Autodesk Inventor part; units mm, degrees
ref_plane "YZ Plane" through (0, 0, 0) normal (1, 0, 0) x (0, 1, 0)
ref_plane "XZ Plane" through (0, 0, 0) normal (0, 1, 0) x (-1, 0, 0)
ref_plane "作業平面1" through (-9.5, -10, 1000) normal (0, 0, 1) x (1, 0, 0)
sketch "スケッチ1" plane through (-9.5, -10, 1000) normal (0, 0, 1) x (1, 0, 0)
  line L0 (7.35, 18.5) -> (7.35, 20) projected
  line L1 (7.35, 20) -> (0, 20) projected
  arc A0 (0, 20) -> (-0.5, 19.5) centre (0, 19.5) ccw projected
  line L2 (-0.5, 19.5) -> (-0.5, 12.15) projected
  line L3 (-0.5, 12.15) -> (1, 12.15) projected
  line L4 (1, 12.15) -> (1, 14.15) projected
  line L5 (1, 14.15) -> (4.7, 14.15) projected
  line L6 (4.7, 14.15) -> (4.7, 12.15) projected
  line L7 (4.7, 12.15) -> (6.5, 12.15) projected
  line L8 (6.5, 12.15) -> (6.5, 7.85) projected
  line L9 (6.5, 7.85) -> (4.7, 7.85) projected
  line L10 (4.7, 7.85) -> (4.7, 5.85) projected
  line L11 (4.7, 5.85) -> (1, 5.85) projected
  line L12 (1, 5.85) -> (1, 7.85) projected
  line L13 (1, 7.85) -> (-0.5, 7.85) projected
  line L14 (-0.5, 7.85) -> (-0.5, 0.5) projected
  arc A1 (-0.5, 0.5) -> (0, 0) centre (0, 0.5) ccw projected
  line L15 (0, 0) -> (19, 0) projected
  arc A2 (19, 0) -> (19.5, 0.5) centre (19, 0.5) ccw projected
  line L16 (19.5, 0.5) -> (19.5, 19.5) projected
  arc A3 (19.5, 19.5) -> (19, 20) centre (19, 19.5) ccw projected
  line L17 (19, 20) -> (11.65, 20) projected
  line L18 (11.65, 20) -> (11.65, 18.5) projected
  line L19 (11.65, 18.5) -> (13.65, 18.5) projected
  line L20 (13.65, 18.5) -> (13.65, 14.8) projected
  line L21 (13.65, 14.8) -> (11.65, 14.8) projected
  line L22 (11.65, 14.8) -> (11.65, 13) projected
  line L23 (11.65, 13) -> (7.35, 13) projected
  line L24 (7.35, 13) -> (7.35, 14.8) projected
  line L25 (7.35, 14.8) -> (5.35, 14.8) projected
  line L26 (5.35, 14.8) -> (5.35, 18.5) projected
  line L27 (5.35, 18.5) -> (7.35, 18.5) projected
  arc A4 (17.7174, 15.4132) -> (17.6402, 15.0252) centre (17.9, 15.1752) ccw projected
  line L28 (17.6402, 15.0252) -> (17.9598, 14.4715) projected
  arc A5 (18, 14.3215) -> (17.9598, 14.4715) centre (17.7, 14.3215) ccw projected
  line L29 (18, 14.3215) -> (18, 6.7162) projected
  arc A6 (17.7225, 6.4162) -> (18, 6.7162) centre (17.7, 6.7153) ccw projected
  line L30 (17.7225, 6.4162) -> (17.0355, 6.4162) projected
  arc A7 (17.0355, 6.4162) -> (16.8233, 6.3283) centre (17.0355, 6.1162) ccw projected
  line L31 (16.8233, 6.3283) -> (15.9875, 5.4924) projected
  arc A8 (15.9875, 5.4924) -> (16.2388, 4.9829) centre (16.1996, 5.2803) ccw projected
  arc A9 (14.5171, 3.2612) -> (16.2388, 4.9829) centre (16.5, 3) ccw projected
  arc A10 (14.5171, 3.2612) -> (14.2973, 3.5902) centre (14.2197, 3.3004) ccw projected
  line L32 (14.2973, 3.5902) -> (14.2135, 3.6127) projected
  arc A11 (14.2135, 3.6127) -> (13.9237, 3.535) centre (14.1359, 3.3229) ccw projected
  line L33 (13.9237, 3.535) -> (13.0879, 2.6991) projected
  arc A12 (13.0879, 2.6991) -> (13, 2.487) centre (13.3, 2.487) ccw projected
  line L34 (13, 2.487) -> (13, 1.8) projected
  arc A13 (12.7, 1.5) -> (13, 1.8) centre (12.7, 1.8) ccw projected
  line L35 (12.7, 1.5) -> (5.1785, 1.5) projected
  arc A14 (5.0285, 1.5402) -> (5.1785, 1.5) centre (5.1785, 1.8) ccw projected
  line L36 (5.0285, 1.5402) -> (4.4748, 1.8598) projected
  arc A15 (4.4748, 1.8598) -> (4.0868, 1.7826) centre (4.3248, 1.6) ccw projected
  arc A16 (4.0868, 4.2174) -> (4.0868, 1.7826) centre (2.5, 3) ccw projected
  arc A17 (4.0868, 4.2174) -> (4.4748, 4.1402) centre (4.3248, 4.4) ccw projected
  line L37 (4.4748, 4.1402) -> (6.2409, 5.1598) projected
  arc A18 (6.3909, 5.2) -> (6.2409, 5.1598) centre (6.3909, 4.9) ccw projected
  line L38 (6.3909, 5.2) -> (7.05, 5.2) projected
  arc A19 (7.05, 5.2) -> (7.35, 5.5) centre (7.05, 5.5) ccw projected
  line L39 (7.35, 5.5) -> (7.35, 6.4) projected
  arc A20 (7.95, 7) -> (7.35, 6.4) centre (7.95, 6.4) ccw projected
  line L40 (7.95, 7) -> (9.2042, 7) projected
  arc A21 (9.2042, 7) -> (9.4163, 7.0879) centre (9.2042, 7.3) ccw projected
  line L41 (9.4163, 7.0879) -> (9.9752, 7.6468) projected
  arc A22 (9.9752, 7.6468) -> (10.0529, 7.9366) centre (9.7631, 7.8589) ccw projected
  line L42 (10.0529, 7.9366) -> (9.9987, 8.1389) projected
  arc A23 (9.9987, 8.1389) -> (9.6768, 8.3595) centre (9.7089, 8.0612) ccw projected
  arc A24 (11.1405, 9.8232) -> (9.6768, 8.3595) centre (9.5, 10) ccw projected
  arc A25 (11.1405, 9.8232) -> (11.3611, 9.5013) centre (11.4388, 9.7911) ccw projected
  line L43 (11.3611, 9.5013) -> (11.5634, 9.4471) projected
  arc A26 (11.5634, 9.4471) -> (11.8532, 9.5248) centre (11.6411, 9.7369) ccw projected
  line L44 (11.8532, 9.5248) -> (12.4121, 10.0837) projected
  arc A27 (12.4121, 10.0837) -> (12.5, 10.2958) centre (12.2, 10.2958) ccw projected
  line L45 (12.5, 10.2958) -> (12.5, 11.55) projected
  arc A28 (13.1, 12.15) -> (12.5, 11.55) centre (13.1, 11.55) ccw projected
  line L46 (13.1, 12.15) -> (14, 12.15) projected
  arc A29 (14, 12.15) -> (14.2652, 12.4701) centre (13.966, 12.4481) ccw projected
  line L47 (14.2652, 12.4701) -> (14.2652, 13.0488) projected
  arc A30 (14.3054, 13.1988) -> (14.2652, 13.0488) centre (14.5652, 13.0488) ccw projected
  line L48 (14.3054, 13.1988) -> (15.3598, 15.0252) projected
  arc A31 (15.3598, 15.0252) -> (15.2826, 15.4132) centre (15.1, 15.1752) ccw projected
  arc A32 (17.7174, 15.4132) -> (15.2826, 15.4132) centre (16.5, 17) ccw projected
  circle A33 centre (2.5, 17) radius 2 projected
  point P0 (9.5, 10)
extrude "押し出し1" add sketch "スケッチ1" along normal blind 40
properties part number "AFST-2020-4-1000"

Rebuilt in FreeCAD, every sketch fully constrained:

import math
import FreeCAD as App
import Part
import Sketcher

V = App.Vector
Q = App.Units.Quantity

doc = App.newDocument("Part")
body = doc.addObject("PartDesign::Body", "Body")

# Sketch on XY plane
sketch1 = body.newObject("Sketcher::SketchObject", "Sketch")
sketch1.AttachmentSupport = (doc.getObject("XY_Plane"), [""])
sketch1.MapMode = "FlatFace"
sketch1.AttachmentOffset = App.Placement(V(0, 0, 1000), App.Rotation())
sketch1.addGeometry(Part.LineSegment(V(-4.15, 8.5, 0), V(-2.15, 8.5, 0)), False)
sketch1.addGeometry(Part.LineSegment(V(-2.15, 8.5, 0), V(-2.15, 10, 0)), False)
sketch1.addGeometry(Part.LineSegment(V(-2.15, 10, 0), V(-9.5, 10, 0)), False)
sketch1.addGeometry(Part.ArcOfCircle(Part.Circle(V(-9.5, 9.5, 0), V(0, 0, 1), 0.5), math.radians(90), math.radians(180)), False)
sketch1.addGeometry(Part.LineSegment(V(-10, 9.5, 0), V(-10, 2.15, 0)), False)
sketch1.addGeometry(Part.LineSegment(V(-10, 2.15, 0), V(-8.5, 2.15, 0)), False)
sketch1.addGeometry(Part.LineSegment(V(-8.5, 2.15, 0), V(-8.5, 4.15, 0)), False)
sketch1.addGeometry(Part.LineSegment(V(-8.5, 4.15, 0), V(-4.8, 4.15, 0)), False)
sketch1.addGeometry(Part.LineSegment(V(-4.8, 4.15, 0), V(-4.8, 2.15, 0)), False)
sketch1.addGeometry(Part.LineSegment(V(-4.8, 2.15, 0), V(-3, 2.15, 0)), False)
sketch1.addGeometry(Part.LineSegment(V(-3, 2.15, 0), V(-3, -2.15, 0)), False)
sketch1.addGeometry(Part.LineSegment(V(-3, -2.15, 0), V(-4.8, -2.15, 0)), False)
sketch1.addGeometry(Part.LineSegment(V(-4.8, -2.15, 0), V(-4.8, -4.15, 0)), False)
sketch1.addGeometry(Part.LineSegment(V(-4.8, -4.15, 0), V(-8.5, -4.15, 0)), False)
sketch1.addGeometry(Part.LineSegment(V(-8.5, -4.15, 0), V(-8.5, -2.15, 0)), False)
sketch1.addGeometry(Part.LineSegment(V(-8.5, -2.15, 0), V(-10, -2.15, 0)), False)
sketch1.addGeometry(Part.LineSegment(V(-10, -2.15, 0), V(-10, -9.5, 0)), False)
sketch1.addGeometry(Part.ArcOfCircle(Part.Circle(V(-9.5, -9.5, 0), V(0, 0, 1), 0.5), math.radians(180), math.radians(270)), False)
sketch1.addGeometry(Part.LineSegment(V(-9.5, -10, 0), V(9.5, -10, 0)), False)
sketch1.addGeometry(Part.ArcOfCircle(Part.Circle(V(9.5, -9.5, 0), V(0, 0, 1), 0.5), math.radians(-90), math.radians(0)), False)
sketch1.addGeometry(Part.LineSegment(V(10, -9.5, 0), V(10, 9.5, 0)), False)
sketch1.addGeometry(Part.ArcOfCircle(Part.Circle(V(9.5, 9.5, 0), V(0, 0, 1), 0.5), math.radians(0), math.radians(90)), False)
sketch1.addGeometry(Part.LineSegment(V(9.5, 10, 0), V(2.15, 10, 0)), False)
sketch1.addGeometry(Part.LineSegment(V(2.15, 10, 0), V(2.15, 8.5, 0)), False)
sketch1.addGeometry(Part.LineSegment(V(2.15, 8.5, 0), V(4.15, 8.5, 0)), False)
sketch1.addGeometry(Part.LineSegment(V(4.15, 8.5, 0), V(4.15, 4.8, 0)), False)
sketch1.addGeometry(Part.LineSegment(V(4.15, 4.8, 0), V(2.15, 4.8, 0)), False)
sketch1.addGeometry(Part.LineSegment(V(2.15, 4.8, 0), V(2.15, 3, 0)), False)
sketch1.addGeometry(Part.LineSegment(V(2.15, 3, 0), V(-2.15, 3, 0)), False)
sketch1.addGeometry(Part.LineSegment(V(-2.15, 3, 0), V(-2.15, 4.8, 0)), False)
sketch1.addGeometry(Part.LineSegment(V(-2.15, 4.8, 0), V(-4.15, 4.8, 0)), False)
sketch1.addGeometry(Part.LineSegment(V(-4.15, 4.8, 0), V(-4.15, 8.5, 0)), False)
sketch1.addGeometry(Part.ArcOfCircle(Part.Circle(V(7, 7, 0), V(0, 0, 1), 2), math.radians(-53), math.radians(233)), False)
sketch1.addGeometry(Part.ArcOfCircle(Part.Circle(V(8.4, 5.18, 0), V(0, 0, 1), 0.3), math.radians(127), math.radians(210)), False)
sketch1.addGeometry(Part.LineSegment(V(8.14, 5.03, 0), V(8.46, 4.47, 0)), False)
sketch1.addGeometry(Part.ArcOfCircle(Part.Circle(V(8.2, 4.32, 0), V(0, 0, 1), 0.3), math.radians(0), math.radians(30)), False)
sketch1.addGeometry(Part.LineSegment(V(8.5, 4.32, 0), V(8.5, -3.28, 0)), False)
sketch1.addGeometry(Part.ArcOfCircle(Part.Circle(V(8.2, -3.28, 0), V(0, 0, 1), 0.3), math.radians(-86), math.radians(0)), False)
sketch1.addGeometry(Part.LineSegment(V(8.22, -3.58, 0), V(7.54, -3.58, 0)), False)
sketch1.addGeometry(Part.ArcOfCircle(Part.Circle(V(7.54, -3.88, 0), V(0, 0, 1), 0.3), math.radians(90), math.radians(135)), False)
sketch1.addGeometry(Part.LineSegment(V(7.32, -3.67, 0), V(6.49, -4.51, 0)), False)
sketch1.addGeometry(Part.ArcOfCircle(Part.Circle(V(6.7, -4.72, 0), V(0, 0, 1), 0.3), math.radians(135), math.radians(278)), False)
sketch1.addGeometry(Part.ArcOfCircle(Part.Circle(V(7, -7, 0), V(0, 0, 1), 2), math.radians(172), math.radians(458)), False)
sketch1.addGeometry(Part.ArcOfCircle(Part.Circle(V(4.72, -6.7, 0), V(0, 0, 1), 0.3), math.radians(-8), math.radians(75)), False)
sketch1.addGeometry(Part.LineSegment(V(4.8, -6.41, 0), V(4.71, -6.39, 0)), False)
sketch1.addGeometry(Part.ArcOfCircle(Part.Circle(V(4.64, -6.68, 0), V(0, 0, 1), 0.3), math.radians(75), math.radians(135)), False)
sketch1.addGeometry(Part.LineSegment(V(4.42, -6.46, 0), V(3.59, -7.3, 0)), False)
sketch1.addGeometry(Part.ArcOfCircle(Part.Circle(V(3.8, -7.51, 0), V(0, 0, 1), 0.3), math.radians(135), math.radians(180)), False)
sketch1.addGeometry(Part.LineSegment(V(3.5, -7.51, 0), V(3.5, -8.2, 0)), False)
sketch1.addGeometry(Part.ArcOfCircle(Part.Circle(V(3.2, -8.2, 0), V(0, 0, 1), 0.3), math.radians(-90), math.radians(0)), False)
sketch1.addGeometry(Part.LineSegment(V(3.2, -8.5, 0), V(-4.32, -8.5, 0)), False)
sketch1.addGeometry(Part.ArcOfCircle(Part.Circle(V(-4.32, -8.2, 0), V(0, 0, 1), 0.3), math.radians(-120), math.radians(-90)), False)
sketch1.addGeometry(Part.LineSegment(V(-4.47, -8.46, 0), V(-5.03, -8.14, 0)), False)
sketch1.addGeometry(Part.ArcOfCircle(Part.Circle(V(-5.18, -8.4, 0), V(0, 0, 1), 0.3), math.radians(60), math.radians(143)), False)
sketch1.addGeometry(Part.ArcOfCircle(Part.Circle(V(-7, -7, 0), V(0, 0, 1), 2), math.radians(37), math.radians(323)), False)
sketch1.addGeometry(Part.ArcOfCircle(Part.Circle(V(-5.18, -5.6, 0), V(0, 0, 1), 0.3), math.radians(-143), math.radians(-60)), False)
sketch1.addGeometry(Part.LineSegment(V(-5.03, -5.86, 0), V(-3.26, -4.84, 0)), False)
sketch1.addGeometry(Part.ArcOfCircle(Part.Circle(V(-3.11, -5.1, 0), V(0, 0, 1), 0.3), math.radians(90), math.radians(120)), False)
sketch1.addGeometry(Part.LineSegment(V(-3.11, -4.8, 0), V(-2.45, -4.8, 0)), False)
sketch1.addGeometry(Part.ArcOfCircle(Part.Circle(V(-2.45, -4.5, 0), V(0, 0, 1), 0.3), math.radians(-90), math.radians(0)), False)
sketch1.addGeometry(Part.LineSegment(V(-2.15, -4.5, 0), V(-2.15, -3.6, 0)), False)
sketch1.addGeometry(Part.ArcOfCircle(Part.Circle(V(-1.55, -3.6, 0), V(0, 0, 1), 0.6), math.radians(90), math.radians(180)), False)
sketch1.addGeometry(Part.LineSegment(V(-1.55, -3, 0), V(-0.3, -3, 0)), False)
sketch1.addGeometry(Part.ArcOfCircle(Part.Circle(V(-0.3, -2.7, 0), V(0, 0, 1), 0.3), math.radians(-90), math.radians(-45)), False)
sketch1.addGeometry(Part.LineSegment(V(-0.08, -2.91, 0), V(0.48, -2.35, 0)), False)
sketch1.addGeometry(Part.ArcOfCircle(Part.Circle(V(0.26, -2.14, 0), V(0, 0, 1), 0.3), math.radians(-45), math.radians(15)), False)
sketch1.addGeometry(Part.LineSegment(V(0.55, -2.06, 0), V(0.5, -1.86, 0)), False)
sketch1.addGeometry(Part.ArcOfCircle(Part.Circle(V(0.21, -1.94, 0), V(0, 0, 1), 0.3), math.radians(15), math.radians(96)), False)
sketch1.addGeometry(Part.ArcOfCircle(Part.Circle(V(0, 0, 0), V(0, 0, 1), 1.65), math.radians(-6), math.radians(276)), False)
sketch1.addGeometry(Part.ArcOfCircle(Part.Circle(V(1.94, -0.21, 0), V(0, 0, 1), 0.3), math.radians(174), math.radians(255)), False)
sketch1.addGeometry(Part.LineSegment(V(1.86, -0.5, 0), V(2.06, -0.55, 0)), False)
sketch1.addGeometry(Part.ArcOfCircle(Part.Circle(V(2.14, -0.26, 0), V(0, 0, 1), 0.3), math.radians(-105), math.radians(-45)), False)
sketch1.addGeometry(Part.LineSegment(V(2.35, -0.48, 0), V(2.91, 0.08, 0)), False)
sketch1.addGeometry(Part.ArcOfCircle(Part.Circle(V(2.7, 0.3, 0), V(0, 0, 1), 0.3), math.radians(-45), math.radians(0)), False)
sketch1.addGeometry(Part.LineSegment(V(3, 0.3, 0), V(3, 1.55, 0)), False)
sketch1.addGeometry(Part.ArcOfCircle(Part.Circle(V(3.6, 1.55, 0), V(0, 0, 1), 0.6), math.radians(90), math.radians(180)), False)
sketch1.addGeometry(Part.LineSegment(V(3.6, 2.15, 0), V(4.5, 2.15, 0)), False)
sketch1.addGeometry(Part.ArcOfCircle(Part.Circle(V(4.47, 2.45, 0), V(0, 0, 1), 0.3), math.radians(-83), math.radians(4)), False)
sketch1.addGeometry(Part.LineSegment(V(4.77, 2.47, 0), V(4.77, 3.05, 0)), False)
sketch1.addGeometry(Part.ArcOfCircle(Part.Circle(V(5.07, 3.05, 0), V(0, 0, 1), 0.3), math.radians(150), math.radians(180)), False)
sketch1.addGeometry(Part.LineSegment(V(4.81, 3.2, 0), V(5.86, 5.03, 0)), False)
sketch1.addGeometry(Part.ArcOfCircle(Part.Circle(V(5.6, 5.18, 0), V(0, 0, 1), 0.3), math.radians(-30), math.radians(53)), False)
sketch1.addGeometry(Part.Circle(V(-7, 7, 0), V(0, 0, 1), 2), False)
sketch1.addConstraint(Sketcher.Constraint("Coincident", 0, 2, 1, 1))
sketch1.addConstraint(Sketcher.Constraint("Coincident", 1, 2, 2, 1))
sketch1.addConstraint(Sketcher.Constraint("Tangent", 2, 2, 3, 1))
sketch1.addConstraint(Sketcher.Constraint("Tangent", 3, 2, 4, 1))
sketch1.addConstraint(Sketcher.Constraint("Coincident", 4, 2, 5, 1))
sketch1.addConstraint(Sketcher.Constraint("Coincident", 5, 2, 6, 1))
sketch1.addConstraint(Sketcher.Constraint("Coincident", 6, 2, 7, 1))
sketch1.addConstraint(Sketcher.Constraint("Coincident", 7, 2, 8, 1))
sketch1.addConstraint(Sketcher.Constraint("Coincident", 8, 2, 9, 1))
sketch1.addConstraint(Sketcher.Constraint("Coincident", 9, 2, 10, 1))
sketch1.addConstraint(Sketcher.Constraint("Coincident", 10, 2, 11, 1))
sketch1.addConstraint(Sketcher.Constraint("Coincident", 11, 2, 12, 1))
sketch1.addConstraint(Sketcher.Constraint("Coincident", 12, 2, 13, 1))
sketch1.addConstraint(Sketcher.Constraint("Coincident", 13, 2, 14, 1))
sketch1.addConstraint(Sketcher.Constraint("Coincident", 14, 2, 15, 1))
sketch1.addConstraint(Sketcher.Constraint("Coincident", 15, 2, 16, 1))
sketch1.addConstraint(Sketcher.Constraint("Tangent", 16, 2, 17, 1))
sketch1.addConstraint(Sketcher.Constraint("Tangent", 17, 2, 18, 1))
sketch1.addConstraint(Sketcher.Constraint("Tangent", 18, 2, 19, 1))
sketch1.addConstraint(Sketcher.Constraint("Tangent", 19, 2, 20, 1))
sketch1.addConstraint(Sketcher.Constraint("Tangent", 20, 2, 21, 1))
sketch1.addConstraint(Sketcher.Constraint("Tangent", 21, 2, 22, 1))
sketch1.addConstraint(Sketcher.Constraint("Coincident", 22, 2, 23, 1))
sketch1.addConstraint(Sketcher.Constraint("Coincident", 23, 2, 24, 1))
sketch1.addConstraint(Sketcher.Constraint("Coincident", 24, 2, 25, 1))
sketch1.addConstraint(Sketcher.Constraint("Coincident", 25, 2, 26, 1))
sketch1.addConstraint(Sketcher.Constraint("Coincident", 26, 2, 27, 1))
sketch1.addConstraint(Sketcher.Constraint("Coincident", 27, 2, 28, 1))
sketch1.addConstraint(Sketcher.Constraint("Coincident", 28, 2, 29, 1))
sketch1.addConstraint(Sketcher.Constraint("Coincident", 29, 2, 30, 1))
sketch1.addConstraint(Sketcher.Constraint("Coincident", 30, 2, 31, 1))
sketch1.addConstraint(Sketcher.Constraint("Coincident", 31, 2, 0, 1))
sketch1.addConstraint(Sketcher.Constraint("Tangent", 32, 1, 33, 1))
sketch1.addConstraint(Sketcher.Constraint("Tangent", 33, 2, 34, 1))
sketch1.addConstraint(Sketcher.Constraint("Tangent", 34, 2, 35, 2))
sketch1.addConstraint(Sketcher.Constraint("Tangent", 35, 1, 36, 1))
sketch1.addConstraint(Sketcher.Constraint("Coincident", 36, 2, 37, 2))
sketch1.addConstraint(Sketcher.Constraint("Coincident", 37, 1, 38, 1))
sketch1.addConstraint(Sketcher.Constraint("Tangent", 38, 2, 39, 1))
sketch1.addConstraint(Sketcher.Constraint("Tangent", 39, 2, 40, 1))
sketch1.addConstraint(Sketcher.Constraint("Tangent", 40, 2, 41, 1))
sketch1.addConstraint(Sketcher.Constraint("Tangent", 41, 2, 42, 2))
sketch1.addConstraint(Sketcher.Constraint("Tangent", 42, 1, 43, 1))
sketch1.addConstraint(Sketcher.Constraint("Coincident", 43, 2, 44, 1))
sketch1.addConstraint(Sketcher.Constraint("Coincident", 44, 2, 45, 1))
sketch1.addConstraint(Sketcher.Constraint("Tangent", 45, 2, 46, 1))
sketch1.addConstraint(Sketcher.Constraint("Tangent", 46, 2, 47, 1))
sketch1.addConstraint(Sketcher.Constraint("Tangent", 47, 2, 48, 1))
sketch1.addConstraint(Sketcher.Constraint("Tangent", 48, 2, 49, 2))
sketch1.addConstraint(Sketcher.Constraint("Tangent", 49, 1, 50, 1))
sketch1.addConstraint(Sketcher.Constraint("Tangent", 50, 2, 51, 2))
sketch1.addConstraint(Sketcher.Constraint("Tangent", 51, 1, 52, 1))
sketch1.addConstraint(Sketcher.Constraint("Tangent", 52, 2, 53, 1))
sketch1.addConstraint(Sketcher.Constraint("Tangent", 53, 2, 54, 2))
sketch1.addConstraint(Sketcher.Constraint("Tangent", 54, 1, 55, 1))
sketch1.addConstraint(Sketcher.Constraint("Tangent", 55, 2, 56, 1))
sketch1.addConstraint(Sketcher.Constraint("Tangent", 56, 2, 57, 2))
sketch1.addConstraint(Sketcher.Constraint("Tangent", 57, 1, 58, 1))
sketch1.addConstraint(Sketcher.Constraint("Tangent", 58, 2, 59, 1))
sketch1.addConstraint(Sketcher.Constraint("Tangent", 59, 2, 60, 1))
sketch1.addConstraint(Sketcher.Constraint("Tangent", 60, 2, 61, 2))
sketch1.addConstraint(Sketcher.Constraint("Tangent", 61, 1, 62, 1))
sketch1.addConstraint(Sketcher.Constraint("Tangent", 62, 2, 63, 1))
sketch1.addConstraint(Sketcher.Constraint("Tangent", 63, 2, 64, 1))
sketch1.addConstraint(Sketcher.Constraint("Tangent", 64, 2, 65, 1))
sketch1.addConstraint(Sketcher.Constraint("Tangent", 65, 2, 66, 1))
sketch1.addConstraint(Sketcher.Constraint("Tangent", 66, 2, 67, 1))
sketch1.addConstraint(Sketcher.Constraint("Tangent", 67, 2, 68, 2))
sketch1.addConstraint(Sketcher.Constraint("Tangent", 68, 1, 69, 1))
sketch1.addConstraint(Sketcher.Constraint("Tangent", 69, 2, 70, 1))
sketch1.addConstraint(Sketcher.Constraint("Tangent", 70, 2, 71, 1))
sketch1.addConstraint(Sketcher.Constraint("Tangent", 71, 2, 72, 1))
sketch1.addConstraint(Sketcher.Constraint("Tangent", 72, 2, 73, 1))
sketch1.addConstraint(Sketcher.Constraint("Tangent", 73, 2, 74, 1))
sketch1.addConstraint(Sketcher.Constraint("Tangent", 74, 2, 75, 2))
sketch1.addConstraint(Sketcher.Constraint("Tangent", 75, 1, 76, 1))
sketch1.addConstraint(Sketcher.Constraint("Coincident", 76, 2, 77, 1))
sketch1.addConstraint(Sketcher.Constraint("Coincident", 77, 2, 78, 1))
sketch1.addConstraint(Sketcher.Constraint("Tangent", 78, 2, 79, 2))
sketch1.addConstraint(Sketcher.Constraint("Tangent", 79, 1, 80, 1))
sketch1.addConstraint(Sketcher.Constraint("Tangent", 80, 2, 81, 1))
sketch1.addConstraint(Sketcher.Constraint("Tangent", 81, 2, 32, 2))
sketch1.addConstraint(Sketcher.Constraint("Horizontal", 0))
sketch1.addConstraint(Sketcher.Constraint("Vertical", 1))
sketch1.addConstraint(Sketcher.Constraint("Horizontal", 2))
sketch1.addConstraint(Sketcher.Constraint("Vertical", 4))
sketch1.addConstraint(Sketcher.Constraint("Horizontal", 5))
sketch1.addConstraint(Sketcher.Constraint("Vertical", 6))
sketch1.addConstraint(Sketcher.Constraint("Horizontal", 7))
sketch1.addConstraint(Sketcher.Constraint("Vertical", 8))
sketch1.addConstraint(Sketcher.Constraint("Horizontal", 9))
sketch1.addConstraint(Sketcher.Constraint("Vertical", 10))
sketch1.addConstraint(Sketcher.Constraint("Horizontal", 11))
sketch1.addConstraint(Sketcher.Constraint("Vertical", 12))
sketch1.addConstraint(Sketcher.Constraint("Horizontal", 13))
sketch1.addConstraint(Sketcher.Constraint("Vertical", 14))
sketch1.addConstraint(Sketcher.Constraint("Horizontal", 15))
sketch1.addConstraint(Sketcher.Constraint("Vertical", 16))
sketch1.addConstraint(Sketcher.Constraint("Horizontal", 18))
sketch1.addConstraint(Sketcher.Constraint("Vertical", 20))
sketch1.addConstraint(Sketcher.Constraint("Horizontal", 22))
sketch1.addConstraint(Sketcher.Constraint("Vertical", 23))
sketch1.addConstraint(Sketcher.Constraint("Horizontal", 24))
sketch1.addConstraint(Sketcher.Constraint("Vertical", 25))
sketch1.addConstraint(Sketcher.Constraint("Horizontal", 26))
sketch1.addConstraint(Sketcher.Constraint("Vertical", 27))
sketch1.addConstraint(Sketcher.Constraint("Horizontal", 28))
sketch1.addConstraint(Sketcher.Constraint("Vertical", 29))
sketch1.addConstraint(Sketcher.Constraint("Horizontal", 30))
sketch1.addConstraint(Sketcher.Constraint("Vertical", 31))
sketch1.addConstraint(Sketcher.Constraint("Vertical", 36))
sketch1.addConstraint(Sketcher.Constraint("Horizontal", 38))
sketch1.addConstraint(Sketcher.Constraint("Vertical", 48))
sketch1.addConstraint(Sketcher.Constraint("Horizontal", 50))
sketch1.addConstraint(Sketcher.Constraint("Horizontal", 58))
sketch1.addConstraint(Sketcher.Constraint("Vertical", 60))
sketch1.addConstraint(Sketcher.Constraint("Horizontal", 62))
sketch1.addConstraint(Sketcher.Constraint("Vertical", 74))
sketch1.addConstraint(Sketcher.Constraint("Horizontal", 76))
sketch1.addConstraint(Sketcher.Constraint("Vertical", 78))
sketch1.addConstraint(Sketcher.Constraint("Coincident", 68, 3, -1, 1))
sketch1.addConstraint(Sketcher.Constraint("Equal", 3, 17))
sketch1.addConstraint(Sketcher.Constraint("Equal", 17, 19))
sketch1.addConstraint(Sketcher.Constraint("Equal", 19, 21))
sketch1.addConstraint(Sketcher.Constraint("Equal", 33, 35))
sketch1.addConstraint(Sketcher.Constraint("Equal", 35, 37))
sketch1.addConstraint(Sketcher.Constraint("Equal", 37, 39))
sketch1.addConstraint(Sketcher.Constraint("Equal", 39, 41))
sketch1.addConstraint(Sketcher.Constraint("Equal", 32, 42))
sketch1.addConstraint(Sketcher.Constraint("Equal", 41, 43))
sketch1.addConstraint(Sketcher.Constraint("Equal", 43, 45))
sketch1.addConstraint(Sketcher.Constraint("Equal", 45, 47))
sketch1.addConstraint(Sketcher.Constraint("Equal", 47, 49))
sketch1.addConstraint(Sketcher.Constraint("Equal", 49, 51))
sketch1.addConstraint(Sketcher.Constraint("Equal", 51, 53))
sketch1.addConstraint(Sketcher.Constraint("Equal", 42, 54))
sketch1.addConstraint(Sketcher.Constraint("Equal", 53, 55))
sketch1.addConstraint(Sketcher.Constraint("Equal", 55, 57))
sketch1.addConstraint(Sketcher.Constraint("Equal", 57, 59))
sketch1.addConstraint(Sketcher.Constraint("Equal", 59, 63))
sketch1.addConstraint(Sketcher.Constraint("Equal", 63, 65))
sketch1.addConstraint(Sketcher.Constraint("Equal", 65, 67))
sketch1.addConstraint(Sketcher.Constraint("Equal", 67, 69))
sketch1.addConstraint(Sketcher.Constraint("Equal", 69, 71))
sketch1.addConstraint(Sketcher.Constraint("Equal", 71, 73))
sketch1.addConstraint(Sketcher.Constraint("Equal", 61, 75))
sketch1.addConstraint(Sketcher.Constraint("Equal", 73, 77))
sketch1.addConstraint(Sketcher.Constraint("Equal", 77, 79))
sketch1.addConstraint(Sketcher.Constraint("Equal", 79, 81))
sketch1.addConstraint(Sketcher.Constraint("Equal", 54, 82))
sketch1.addConstraint(Sketcher.Constraint("Symmetric", 3, 3, 19, 3, -1, 1))
sketch1.addConstraint(Sketcher.Constraint("Symmetric", 17, 3, 21, 3, -1, 1))
sketch1.addConstraint(Sketcher.Constraint("Symmetric", 32, 3, 54, 3, -1, 1))
sketch1.addConstraint(Sketcher.Constraint("Symmetric", 42, 3, 82, 3, -1, 1))
sketch1.addConstraint(Sketcher.Constraint("Symmetric", 42, 3, 54, 3, -2))
sketch1.addConstraint(Sketcher.Constraint("Symmetric", 0, 2, 23, 2, -2))
sketch1.addConstraint(Sketcher.Constraint("Symmetric", 26, 2, 29, 2, -2))
sketch1.addConstraint(Sketcher.Constraint("Symmetric", 8, 2, 11, 2, -1))
sketch1.addConstraint(Sketcher.Constraint("Symmetric", 6, 2, 13, 2, -1))
sketch1.addConstraint(Sketcher.Constraint("Parallel", 40, 46))
sketch1.addConstraint(Sketcher.Constraint("Perpendicular", 34, 56))
sketch1.addConstraint(Sketcher.Constraint("Parallel", 46, 64))
sketch1.addConstraint(Sketcher.Constraint("Parallel", 64, 72))
sketch1.addConstraint(Sketcher.Constraint("Perpendicular", 52, 80))
sketch1.addConstraint(Sketcher.Constraint("Horizontal", 33, 3, 81, 3))
sketch1.addConstraint(Sketcher.Constraint("Horizontal", 5, 2, 8, 2))
sketch1.addConstraint(Sketcher.Constraint("Horizontal", 11, 2, 14, 2))
sketch1.addConstraint(Sketcher.Constraint("Horizontal", 9, 2, 75, 1))
sketch1.addConstraint(Sketcher.Constraint("Horizontal", 33, 2, 80, 2))
sketch1.addConstraint(Sketcher.Constraint("Vertical", 53, 3, 55, 3))
sketch1.addConstraint(Sketcher.Constraint("Vertical", 23, 2, 26, 2))
sketch1.addConstraint(Sketcher.Constraint("Vertical", 29, 2, 59, 2))
sketch1.addConstraint(Sketcher.Constraint("Equal", 0, 24))
sketch1.addConstraint(Sketcher.Constraint("Equal", 15, 1))
sketch1.addConstraint(Sketcher.Constraint("Equal", 22, 4))
sketch1.addConstraint(Sketcher.Constraint("Equal", 30, 6))
sketch1.addConstraint(Sketcher.Constraint("Equal", 28, 10))
sketch1.addConstraint(Sketcher.Constraint("Equal", 13, 25))
sketch1.addConstraint(Sketcher.Constraint("Equal", 11, 27))
sketch1.addConstraint(Sketcher.Constraint("Equal", 38, 48))
sketch1.addConstraint(Sketcher.Constraint("Equal", 76, 60))
sketch1.addConstraint(Sketcher.Constraint("Equal", 62, 74))
sketch1.addConstraint(Sketcher.Constraint("Equal", 40, 46))
sketch1.addConstraint(Sketcher.Constraint("Equal", 34, 52))
sketch1.addConstraint(Sketcher.Constraint("Equal", 66, 70))
sketch1.addConstraint(Sketcher.Constraint("Equal", 64, 72))
sketch1.addConstraint(Sketcher.Constraint("Diameter", 82, 4.0))
sketch1.addConstraint(Sketcher.Constraint("Radius", 3, 0.5))
sketch1.addConstraint(Sketcher.Constraint("Radius", 33, 0.3))
sketch1.addConstraint(Sketcher.Constraint("Radius", 61, 0.6))
sketch1.addConstraint(Sketcher.Constraint("DistanceX", 0, 1, 0, 2, 2.0))
sketch1.addConstraint(Sketcher.Constraint("DistanceX", 18, 1, 18, 2, 19.0))
sketch1.addConstraint(Sketcher.Constraint("Angle", 64, Q("45 deg")))
sketch1.addConstraint(Sketcher.Constraint("Radius", 68, 1.65))
sketch1.addConstraint(Sketcher.Constraint("DistanceX", 5, 1, 5, 2, 1.5))
sketch1.addConstraint(Sketcher.Constraint("DistanceX", 7, 1, 7, 2, 3.7))
sketch1.addConstraint(Sketcher.Constraint("DistanceX", 9, 1, 9, 2, 1.8))
sketch1.addConstraint(Sketcher.Constraint("DistanceX", 28, 2, 28, 1, 4.3))
sketch1.addConstraint(Sketcher.Constraint("DistanceX", 76, 1, 76, 2, 0.9))
sketch1.addConstraint(Sketcher.Constraint("DistanceX", -1, 1, 32, 3, 7.0))
sketch1.addConstraint(Sketcher.Constraint("DistanceY", -1, 1, 32, 3, 7.0))
sketch1.addConstraint(Sketcher.Constraint("DistanceY", 61, 1, -1, 1, 3.0))
sketch1.addConstraint(Sketcher.Constraint("DistanceX", -1, 1, 73, 2, 3.0))
sketch1.addConstraint(Sketcher.Constraint("DistanceX", -1, 1, 33, 3, 8.4))
sketch1.addConstraint(Sketcher.Constraint("DistanceX", -1, 1, 35, 3, 8.2))
sketch1.addConstraint(Sketcher.Constraint("DistanceX", -1, 1, 47, 3, 3.8))
sketch1.addConstraint(Sketcher.Constraint("DistanceY", 49, 3, -1, 1, 8.2))
sketch1.addConstraint(Sketcher.Constraint("Angle", 44, Q("164.9708 deg")))
sketch1.addConstraint(Sketcher.Constraint("DistanceX", 38, 2, 38, 1, 0.687))
sketch1.addConstraint(Sketcher.Constraint("DistanceX", 58, 1, 58, 2, 0.659))
sketch1.addConstraint(Sketcher.Constraint("DistanceY", -1, 1, 77, 2, 2.47))
sketch1.addConstraint(Sketcher.Constraint("Distance", 40, 1.182))
sketch1.addConstraint(Sketcher.Constraint("Distance", 80, 2.109))
sketch1.addConstraint(Sketcher.Constraint("DistanceX", 62, 1, 62, 2, 1.2542))
sketch1.addConstraint(Sketcher.Constraint("DistanceY", 36, 2, 36, 1, 7.6053))
sketch1.addConstraint(Sketcher.Constraint("DistanceX", -1, 1, 65, 3, 0.263))
sketch1.addConstraint(Sketcher.Constraint("DistanceX", -1, 1, 67, 3, 0.209))
sketch1.addConstraint(Sketcher.Constraint("DistanceY", 41, 2, -1, 1, 5.017))
sketch1.addConstraint(Sketcher.Constraint("Distance", 44, 0.0868))
sketch1.addConstraint(Sketcher.Constraint("DistanceX", -1, 1, 43, 2, 4.7973))
pad1 = body.newObject("PartDesign::Pad", "Pad")
pad1.Profile = sketch1
pad1.Length = 40

doc.recompute()
